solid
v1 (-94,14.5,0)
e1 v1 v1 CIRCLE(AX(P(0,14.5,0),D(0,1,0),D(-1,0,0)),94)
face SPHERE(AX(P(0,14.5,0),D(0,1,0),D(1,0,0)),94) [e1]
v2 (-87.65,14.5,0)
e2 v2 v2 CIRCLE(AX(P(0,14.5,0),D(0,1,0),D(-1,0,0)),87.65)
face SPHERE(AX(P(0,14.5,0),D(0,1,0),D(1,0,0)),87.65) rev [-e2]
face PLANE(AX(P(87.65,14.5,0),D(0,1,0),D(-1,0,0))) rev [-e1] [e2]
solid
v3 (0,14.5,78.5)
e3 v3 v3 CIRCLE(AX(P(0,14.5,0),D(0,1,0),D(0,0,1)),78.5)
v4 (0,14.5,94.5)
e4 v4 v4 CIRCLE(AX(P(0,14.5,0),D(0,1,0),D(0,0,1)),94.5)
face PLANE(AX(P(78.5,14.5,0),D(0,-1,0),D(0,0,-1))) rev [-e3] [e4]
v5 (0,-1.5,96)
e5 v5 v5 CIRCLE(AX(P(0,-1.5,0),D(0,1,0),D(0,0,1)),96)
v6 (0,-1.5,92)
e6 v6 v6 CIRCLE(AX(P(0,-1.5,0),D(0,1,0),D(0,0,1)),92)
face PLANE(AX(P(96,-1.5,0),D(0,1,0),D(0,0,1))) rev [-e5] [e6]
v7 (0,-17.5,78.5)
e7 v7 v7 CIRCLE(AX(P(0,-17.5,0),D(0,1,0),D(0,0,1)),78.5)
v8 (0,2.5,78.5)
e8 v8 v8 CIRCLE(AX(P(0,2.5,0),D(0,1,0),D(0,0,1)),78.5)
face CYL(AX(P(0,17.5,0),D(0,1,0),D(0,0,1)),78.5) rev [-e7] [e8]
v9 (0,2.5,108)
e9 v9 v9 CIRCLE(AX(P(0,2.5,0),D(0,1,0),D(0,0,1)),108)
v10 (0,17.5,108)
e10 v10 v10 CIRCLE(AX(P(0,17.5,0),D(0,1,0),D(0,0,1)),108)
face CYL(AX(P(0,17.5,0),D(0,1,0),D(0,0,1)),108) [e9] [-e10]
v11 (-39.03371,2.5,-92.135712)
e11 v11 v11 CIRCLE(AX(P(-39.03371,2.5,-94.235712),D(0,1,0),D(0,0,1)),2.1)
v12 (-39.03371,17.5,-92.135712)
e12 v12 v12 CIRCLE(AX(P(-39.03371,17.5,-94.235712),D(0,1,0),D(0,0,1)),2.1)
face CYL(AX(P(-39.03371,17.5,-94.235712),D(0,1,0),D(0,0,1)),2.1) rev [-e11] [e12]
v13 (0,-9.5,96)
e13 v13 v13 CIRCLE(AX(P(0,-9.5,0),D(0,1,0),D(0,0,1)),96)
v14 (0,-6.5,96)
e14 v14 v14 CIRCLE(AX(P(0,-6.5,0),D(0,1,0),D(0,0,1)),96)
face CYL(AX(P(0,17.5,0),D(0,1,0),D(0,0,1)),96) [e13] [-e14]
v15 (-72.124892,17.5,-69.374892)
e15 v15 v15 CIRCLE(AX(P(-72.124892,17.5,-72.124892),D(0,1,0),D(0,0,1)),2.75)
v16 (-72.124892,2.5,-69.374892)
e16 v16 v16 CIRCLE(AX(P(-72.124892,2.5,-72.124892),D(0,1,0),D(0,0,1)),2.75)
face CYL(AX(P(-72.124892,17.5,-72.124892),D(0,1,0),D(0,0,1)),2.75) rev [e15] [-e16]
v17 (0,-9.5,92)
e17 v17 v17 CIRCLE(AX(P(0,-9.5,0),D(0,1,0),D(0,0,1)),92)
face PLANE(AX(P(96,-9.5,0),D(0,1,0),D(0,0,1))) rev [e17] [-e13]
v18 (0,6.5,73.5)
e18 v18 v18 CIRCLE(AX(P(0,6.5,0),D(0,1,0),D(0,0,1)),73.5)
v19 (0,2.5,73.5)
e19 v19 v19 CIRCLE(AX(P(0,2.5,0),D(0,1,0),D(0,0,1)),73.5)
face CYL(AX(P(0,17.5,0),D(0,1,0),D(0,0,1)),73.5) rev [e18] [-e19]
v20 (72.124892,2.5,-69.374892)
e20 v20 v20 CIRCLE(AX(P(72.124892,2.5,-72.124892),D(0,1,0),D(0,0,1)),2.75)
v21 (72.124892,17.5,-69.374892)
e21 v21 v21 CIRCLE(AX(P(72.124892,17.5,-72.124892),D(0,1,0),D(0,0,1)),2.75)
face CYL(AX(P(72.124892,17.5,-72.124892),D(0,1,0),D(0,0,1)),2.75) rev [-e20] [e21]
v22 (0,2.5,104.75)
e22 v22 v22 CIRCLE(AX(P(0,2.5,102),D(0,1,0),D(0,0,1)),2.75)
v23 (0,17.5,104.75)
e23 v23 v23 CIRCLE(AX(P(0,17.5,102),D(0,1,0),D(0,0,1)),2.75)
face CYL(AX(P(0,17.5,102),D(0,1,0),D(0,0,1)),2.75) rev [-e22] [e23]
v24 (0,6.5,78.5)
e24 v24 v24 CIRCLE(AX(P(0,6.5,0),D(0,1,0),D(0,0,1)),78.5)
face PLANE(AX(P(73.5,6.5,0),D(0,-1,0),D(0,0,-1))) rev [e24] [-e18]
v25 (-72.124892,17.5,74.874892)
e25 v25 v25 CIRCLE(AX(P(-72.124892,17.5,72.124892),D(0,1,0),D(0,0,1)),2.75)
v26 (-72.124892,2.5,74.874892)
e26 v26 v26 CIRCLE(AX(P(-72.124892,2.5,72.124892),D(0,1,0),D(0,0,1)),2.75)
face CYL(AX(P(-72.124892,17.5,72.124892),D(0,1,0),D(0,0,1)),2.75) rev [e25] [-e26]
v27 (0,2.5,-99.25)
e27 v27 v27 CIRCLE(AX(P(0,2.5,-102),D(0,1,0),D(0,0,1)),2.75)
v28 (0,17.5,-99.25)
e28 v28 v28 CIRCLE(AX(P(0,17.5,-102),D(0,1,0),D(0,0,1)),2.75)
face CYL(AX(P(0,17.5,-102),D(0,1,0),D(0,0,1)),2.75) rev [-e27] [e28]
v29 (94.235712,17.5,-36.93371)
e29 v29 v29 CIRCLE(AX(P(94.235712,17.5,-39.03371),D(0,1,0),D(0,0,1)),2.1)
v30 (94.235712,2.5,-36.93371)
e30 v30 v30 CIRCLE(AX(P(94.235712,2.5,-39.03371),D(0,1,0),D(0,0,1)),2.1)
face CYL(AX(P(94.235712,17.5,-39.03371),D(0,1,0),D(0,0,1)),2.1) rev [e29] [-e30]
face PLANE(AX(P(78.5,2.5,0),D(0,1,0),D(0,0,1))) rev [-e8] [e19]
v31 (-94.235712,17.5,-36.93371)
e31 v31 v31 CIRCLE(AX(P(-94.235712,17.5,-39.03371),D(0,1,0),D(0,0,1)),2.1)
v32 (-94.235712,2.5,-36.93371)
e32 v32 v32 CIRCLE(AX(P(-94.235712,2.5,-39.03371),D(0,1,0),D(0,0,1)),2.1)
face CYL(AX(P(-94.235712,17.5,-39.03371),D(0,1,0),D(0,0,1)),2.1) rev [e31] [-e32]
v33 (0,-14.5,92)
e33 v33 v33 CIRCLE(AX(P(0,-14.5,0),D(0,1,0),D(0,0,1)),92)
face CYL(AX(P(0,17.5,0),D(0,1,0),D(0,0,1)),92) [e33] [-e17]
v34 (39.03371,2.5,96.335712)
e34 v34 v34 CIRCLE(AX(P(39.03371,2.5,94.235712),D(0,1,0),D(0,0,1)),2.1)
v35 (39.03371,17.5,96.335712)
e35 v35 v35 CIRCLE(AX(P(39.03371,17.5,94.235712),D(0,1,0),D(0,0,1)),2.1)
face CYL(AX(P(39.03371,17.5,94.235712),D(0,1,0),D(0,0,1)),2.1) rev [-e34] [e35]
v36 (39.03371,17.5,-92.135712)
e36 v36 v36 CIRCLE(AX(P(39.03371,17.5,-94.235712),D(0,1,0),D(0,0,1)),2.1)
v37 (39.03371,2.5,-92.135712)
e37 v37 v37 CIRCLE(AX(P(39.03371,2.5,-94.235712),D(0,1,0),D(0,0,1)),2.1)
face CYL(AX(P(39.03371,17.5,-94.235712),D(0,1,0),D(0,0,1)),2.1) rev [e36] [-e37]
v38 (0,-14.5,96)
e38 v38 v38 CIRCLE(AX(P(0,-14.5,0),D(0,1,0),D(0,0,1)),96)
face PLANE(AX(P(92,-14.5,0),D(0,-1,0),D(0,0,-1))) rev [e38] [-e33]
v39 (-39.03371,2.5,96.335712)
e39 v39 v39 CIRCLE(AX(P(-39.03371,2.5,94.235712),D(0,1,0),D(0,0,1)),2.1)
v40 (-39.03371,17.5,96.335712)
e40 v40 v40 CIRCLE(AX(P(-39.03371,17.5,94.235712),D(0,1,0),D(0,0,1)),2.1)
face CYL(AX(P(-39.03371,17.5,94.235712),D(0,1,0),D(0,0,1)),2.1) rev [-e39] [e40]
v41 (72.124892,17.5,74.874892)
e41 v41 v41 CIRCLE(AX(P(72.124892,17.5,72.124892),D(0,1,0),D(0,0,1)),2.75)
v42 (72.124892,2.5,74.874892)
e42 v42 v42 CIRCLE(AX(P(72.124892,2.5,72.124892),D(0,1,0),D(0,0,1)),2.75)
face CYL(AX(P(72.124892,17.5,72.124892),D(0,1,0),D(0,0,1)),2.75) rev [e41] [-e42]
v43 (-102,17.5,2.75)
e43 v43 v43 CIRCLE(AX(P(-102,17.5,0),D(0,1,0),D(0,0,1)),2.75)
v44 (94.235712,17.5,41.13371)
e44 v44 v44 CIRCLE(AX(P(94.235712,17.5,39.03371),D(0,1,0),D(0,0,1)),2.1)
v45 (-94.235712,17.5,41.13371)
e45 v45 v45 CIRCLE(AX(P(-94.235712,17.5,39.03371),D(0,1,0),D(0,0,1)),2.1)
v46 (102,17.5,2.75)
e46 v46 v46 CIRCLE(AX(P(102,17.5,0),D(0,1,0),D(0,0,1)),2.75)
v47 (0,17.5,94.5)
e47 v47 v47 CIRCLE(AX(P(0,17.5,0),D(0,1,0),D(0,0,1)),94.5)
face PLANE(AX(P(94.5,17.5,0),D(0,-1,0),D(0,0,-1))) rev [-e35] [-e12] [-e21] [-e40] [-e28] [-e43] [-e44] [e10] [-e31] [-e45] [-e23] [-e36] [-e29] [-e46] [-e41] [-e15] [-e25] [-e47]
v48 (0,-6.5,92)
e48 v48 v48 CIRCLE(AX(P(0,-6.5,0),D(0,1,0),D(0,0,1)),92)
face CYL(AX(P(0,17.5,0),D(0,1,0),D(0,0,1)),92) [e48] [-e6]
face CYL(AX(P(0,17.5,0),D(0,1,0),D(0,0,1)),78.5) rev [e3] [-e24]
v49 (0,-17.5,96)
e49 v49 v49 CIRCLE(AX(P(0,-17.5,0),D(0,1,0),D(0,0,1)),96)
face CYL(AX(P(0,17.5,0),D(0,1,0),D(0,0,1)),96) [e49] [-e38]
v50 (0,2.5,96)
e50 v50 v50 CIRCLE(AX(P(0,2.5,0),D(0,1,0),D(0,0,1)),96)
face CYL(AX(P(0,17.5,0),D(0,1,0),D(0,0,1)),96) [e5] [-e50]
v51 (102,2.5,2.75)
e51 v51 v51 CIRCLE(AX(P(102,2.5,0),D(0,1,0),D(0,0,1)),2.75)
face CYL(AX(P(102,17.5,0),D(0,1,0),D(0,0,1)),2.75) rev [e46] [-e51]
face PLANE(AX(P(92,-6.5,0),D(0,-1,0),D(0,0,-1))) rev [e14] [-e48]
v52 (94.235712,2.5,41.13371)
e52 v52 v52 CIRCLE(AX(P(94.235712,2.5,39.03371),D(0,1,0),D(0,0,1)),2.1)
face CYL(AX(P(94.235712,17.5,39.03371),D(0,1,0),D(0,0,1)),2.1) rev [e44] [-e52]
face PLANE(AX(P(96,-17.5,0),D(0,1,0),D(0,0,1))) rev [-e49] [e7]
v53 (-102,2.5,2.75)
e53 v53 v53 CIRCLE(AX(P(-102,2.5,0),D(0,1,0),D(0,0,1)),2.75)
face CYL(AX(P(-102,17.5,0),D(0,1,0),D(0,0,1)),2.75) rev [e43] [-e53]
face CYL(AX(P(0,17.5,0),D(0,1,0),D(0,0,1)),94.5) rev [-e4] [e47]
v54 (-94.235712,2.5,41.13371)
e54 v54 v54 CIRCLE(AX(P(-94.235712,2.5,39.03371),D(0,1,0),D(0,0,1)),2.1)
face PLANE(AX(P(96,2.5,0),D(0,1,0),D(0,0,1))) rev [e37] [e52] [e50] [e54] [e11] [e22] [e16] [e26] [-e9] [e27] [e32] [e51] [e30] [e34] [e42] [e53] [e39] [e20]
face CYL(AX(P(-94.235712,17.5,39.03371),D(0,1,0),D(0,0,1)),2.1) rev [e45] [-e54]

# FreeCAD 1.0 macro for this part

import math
import FreeCAD as App
import Part
import Sketcher
from FreeCAD import Vector


def add_polygon(sketch, points):
    """Adds a closed chain of lines whose ends are joined by coincident constraints."""
    first, n = sketch.GeometryCount, len(points)
    for a, b in zip(points, points[1:] + points[:1]):
        sketch.addGeometry(Part.LineSegment(App.Vector(*a, 0), App.Vector(*b, 0)), False)
    for i in range(n):
        sketch.addConstraint(Sketcher.Constraint("Coincident", first + i, 2, first + (i + 1) % n, 1))

doc = App.newDocument("Part")
body = doc.addObject("PartDesign::Body", "Body")

# Sketch on XY plane
sketch1 = body.newObject("Sketcher::SketchObject", "Sketch")
sketch1.AttachmentSupport = (doc.getObject("XY_Plane"), [""])
sketch1.MapMode = "FlatFace"
add_polygon(sketch1, [(78.5, 2.5), (78.5, -17.5), (96, -17.5), (96, -14.5), (92, -14.5), (92, -9.5), (96, -9.5), (96, -6.5), (92, -6.5), (92, -1.5), (96, -1.5), (96, 2.5), (108, 2.5), (108, 17.5), (94.5, 17.5), (94.5, 14.5), (78.5, 14.5), (78.5, 6.5), (73.5, 6.5), (73.5, 2.5)])  # lines 0-19
sketch1.addConstraint(Sketcher.Constraint("Vertical", 0))
sketch1.addConstraint(Sketcher.Constraint("Horizontal", 1))
sketch1.addConstraint(Sketcher.Constraint("Vertical", 2))
sketch1.addConstraint(Sketcher.Constraint("Horizontal", 3))
sketch1.addConstraint(Sketcher.Constraint("Vertical", 4))
sketch1.addConstraint(Sketcher.Constraint("Horizontal", 5))
sketch1.addConstraint(Sketcher.Constraint("Vertical", 6))
sketch1.addConstraint(Sketcher.Constraint("Horizontal", 7))
sketch1.addConstraint(Sketcher.Constraint("Vertical", 8))
sketch1.addConstraint(Sketcher.Constraint("Horizontal", 9))
sketch1.addConstraint(Sketcher.Constraint("Vertical", 10))
sketch1.addConstraint(Sketcher.Constraint("Horizontal", 11))
sketch1.addConstraint(Sketcher.Constraint("Vertical", 12))
sketch1.addConstraint(Sketcher.Constraint("Horizontal", 13))
sketch1.addConstraint(Sketcher.Constraint("Vertical", 14))
sketch1.addConstraint(Sketcher.Constraint("Horizontal", 15))
sketch1.addConstraint(Sketcher.Constraint("Vertical", 16))
sketch1.addConstraint(Sketcher.Constraint("Horizontal", 17))
sketch1.addConstraint(Sketcher.Constraint("Vertical", 18))
sketch1.addConstraint(Sketcher.Constraint("Horizontal", 19))
sketch1.addConstraint(Sketcher.Constraint("Horizontal", 11, 2, 18, 2))
sketch1.addConstraint(Sketcher.Constraint("Vertical", 2, 2, 5, 2))
sketch1.addConstraint(Sketcher.Constraint("Vertical", 4, 2, 7, 2))
sketch1.addConstraint(Sketcher.Constraint("Vertical", 6, 2, 9, 2))
sketch1.addConstraint(Sketcher.Constraint("Vertical", 0, 2, 15, 2))
sketch1.addConstraint(Sketcher.Constraint("Equal", 19, 4))
sketch1.addConstraint(Sketcher.Constraint("Equal", 2, 6))
sketch1.addConstraint(Sketcher.Constraint("Equal", 4, 8))
sketch1.addConstraint(Sketcher.Constraint("Equal", 9, 10))
sketch1.addConstraint(Sketcher.Constraint("Equal", 6, 14))
sketch1.addConstraint(Sketcher.Constraint("Equal", 10, 18))
sketch1.addConstraint(Sketcher.Constraint("DistanceX", 3, 2, 3, 1, 4.0))
sketch1.addConstraint(Sketcher.Constraint("DistanceX", 11, 1, 11, 2, 12.0))
sketch1.addConstraint(Sketcher.Constraint("DistanceX", 15, 2, 15, 1, 16.0))
sketch1.addConstraint(Sketcher.Constraint("DistanceX", 17, 2, 17, 1, 5.0))
sketch1.addConstraint(Sketcher.Constraint("DistanceY", 0, 2, 0, 1, 20.0))
sketch1.addConstraint(Sketcher.Constraint("DistanceY", 12, 1, 12, 2, 15.0))
sketch1.addConstraint(Sketcher.Constraint("DistanceX", 1, 1, 1, 2, 17.5))
sketch1.addConstraint(Sketcher.Constraint("DistanceX", -1, 1, 1, 2, 96.0))
sketch1.addConstraint(Sketcher.Constraint("DistanceY", 0, 2, -1, 1, 17.5))
revolution = body.newObject("PartDesign::Revolution", "Revolution")
revolution.Profile = sketch1
revolution.ReferenceAxis = (sketch1, ["V_Axis"])
revolution.Angle = 360

# Sketch on XZ plane
sketch2 = body.newObject("Sketcher::SketchObject", "Sketch001")
sketch2.AttachmentSupport = (doc.getObject("XZ_Plane"), [""])
sketch2.MapMode = "FlatFace"
sketch2.AttachmentOffset = App.Placement(Vector(0, 0, -17.5), App.Rotation())
sketch2.addGeometry(Part.Circle(Vector(102, 0, 0), Vector(0, 0, 1), 2.75), False)
sketch2.addGeometry(Part.Circle(Vector(72.124892, 72.124892, 0), Vector(0, 0, 1), 2.75), False)
sketch2.addGeometry(Part.Circle(Vector(0, 102, 0), Vector(0, 0, 1), 2.75), False)
sketch2.addGeometry(Part.Circle(Vector(-72.124892, 72.124892, 0), Vector(0, 0, 1), 2.75), False)
sketch2.addGeometry(Part.Circle(Vector(-102, 0, 0), Vector(0, 0, 1), 2.75), False)
sketch2.addGeometry(Part.Circle(Vector(-72.124892, -72.124892, 0), Vector(0, 0, 1), 2.75), False)
sketch2.addGeometry(Part.Circle(Vector(0, -102, 0), Vector(0, 0, 1), 2.75), False)
sketch2.addGeometry(Part.Circle(Vector(72.124892, -72.124892, 0), Vector(0, 0, 1), 2.75), False)
sketch2.addConstraint(Sketcher.Constraint("Equal", 0, 1))
sketch2.addConstraint(Sketcher.Constraint("Equal", 1, 2))
sketch2.addConstraint(Sketcher.Constraint("Equal", 2, 3))
sketch2.addConstraint(Sketcher.Constraint("Equal", 3, 4))
sketch2.addConstraint(Sketcher.Constraint("Equal", 4, 5))
sketch2.addConstraint(Sketcher.Constraint("Equal", 5, 6))
sketch2.addConstraint(Sketcher.Constraint("Equal", 6, 7))
sketch2.addConstraint(Sketcher.Constraint("Symmetric", 0, 3, 4, 3, -1, 1))
sketch2.addConstraint(Sketcher.Constraint("Symmetric", 1, 3, 5, 3, -1, 1))
sketch2.addConstraint(Sketcher.Constraint("Symmetric", 2, 3, 6, 3, -1, 1))
sketch2.addConstraint(Sketcher.Constraint("Symmetric", 3, 3, 7, 3, -1, 1))
sketch2.addConstraint(Sketcher.Constraint("Symmetric", 1, 3, 3, 3, -2))
sketch2.addConstraint(Sketcher.Constraint("PointOnObject", 0, 3, -1))
sketch2.addConstraint(Sketcher.Constraint("PointOnObject", 2, 3, -2))
sketch2.addConstraint(Sketcher.Constraint("Diameter", 0, 5.5))
sketch2.addConstraint(Sketcher.Constraint("DistanceX", -1, 1, 0, 3, 102.0))
sketch2.addConstraint(Sketcher.Constraint("DistanceY", -1, 1, 2, 3, 102.0))
sketch2.addConstraint(Sketcher.Constraint("DistanceX", -1, 1, 1, 3, 72.124892))
sketch2.addConstraint(Sketcher.Constraint("DistanceY", -1, 1, 1, 3, 72.124892))
doc.recompute()
hole = body.newObject("PartDesign::Hole", "Hole")
hole.Profile = sketch2
hole.ThreadType = "None"
hole.Diameter = 5.5
hole.DepthType = "ThroughAll"
hole.Reversed = True

# Sketch on XZ plane
sketch3 = body.newObject("Sketcher::SketchObject", "Sketch002")
sketch3.AttachmentSupport = (doc.getObject("XZ_Plane"), [""])
sketch3.MapMode = "FlatFace"
sketch3.AttachmentOffset = App.Placement(Vector(0, 0, -17.5), App.Rotation())
sketch3.addGeometry(Part.Circle(Vector(94.235712, -39.03371, 0), Vector(0, 0, 1), 2.1), False)
sketch3.addGeometry(Part.Circle(Vector(94.235712, 39.03371, 0), Vector(0, 0, 1), 2.1), False)
sketch3.addGeometry(Part.Circle(Vector(39.03371, 94.235712, 0), Vector(0, 0, 1), 2.1), False)
sketch3.addGeometry(Part.Circle(Vector(-39.03371, 94.235712, 0), Vector(0, 0, 1), 2.1), False)
sketch3.addGeometry(Part.Circle(Vector(-94.235712, 39.03371, 0), Vector(0, 0, 1), 2.1), False)
sketch3.addGeometry(Part.Circle(Vector(-94.235712, -39.03371, 0), Vector(0, 0, 1), 2.1), False)
sketch3.addGeometry(Part.Circle(Vector(-39.03371, -94.235712, 0), Vector(0, 0, 1), 2.1), False)
sketch3.addGeometry(Part.Circle(Vector(39.03371, -94.235712, 0), Vector(0, 0, 1), 2.1), False)
sketch3.addConstraint(Sketcher.Constraint("Equal", 0, 1))
sketch3.addConstraint(Sketcher.Constraint("Equal", 1, 2))
sketch3.addConstraint(Sketcher.Constraint("Equal", 2, 3))
sketch3.addConstraint(Sketcher.Constraint("Equal", 3, 4))
sketch3.addConstraint(Sketcher.Constraint("Equal", 4, 5))
sketch3.addConstraint(Sketcher.Constraint("Equal", 5, 6))
sketch3.addConstraint(Sketcher.Constraint("Equal", 6, 7))
sketch3.addConstraint(Sketcher.Constraint("Symmetric", 0, 3, 4, 3, -1, 1))
sketch3.addConstraint(Sketcher.Constraint("Symmetric", 1, 3, 5, 3, -1, 1))
sketch3.addConstraint(Sketcher.Constraint("Symmetric", 2, 3, 6, 3, -1, 1))
sketch3.addConstraint(Sketcher.Constraint("Symmetric", 3, 3, 7, 3, -1, 1))
sketch3.addConstraint(Sketcher.Constraint("Symmetric", 2, 3, 3, 3, -2))
sketch3.addConstraint(Sketcher.Constraint("Symmetric", 1, 3, 4, 3, -2))
sketch3.addConstraint(Sketcher.Constraint("Diameter", 0, 4.2))
sketch3.addConstraint(Sketcher.Constraint("DistanceY", 0, 3, -1, 1, 39.03371))
sketch3.addConstraint(Sketcher.Constraint("DistanceX", -1, 1, 2, 3, 39.03371))
sketch3.addConstraint(Sketcher.Constraint("DistanceX", -1, 1, 0, 3, 94.235712))
sketch3.addConstraint(Sketcher.Constraint("DistanceY", -1, 1, 2, 3, 94.235712))
doc.recompute()
hole2 = body.newObject("PartDesign::Hole", "Hole001")
hole2.Profile = sketch3
hole2.ThreadType = "None"
hole2.Diameter = 4.2
hole2.DepthType = "ThroughAll"
hole2.Reversed = True
body2 = doc.addObject("PartDesign::Body", "Body001")

# Sketch on XY plane
sketch4 = body2.newObject("Sketcher::SketchObject", "Sketch003")
sketch4.AttachmentSupport = (doc.getObject("XY_Plane001"), [""])
sketch4.MapMode = "FlatFace"
sketch4.addGeometry(Part.LineSegment(Vector(87.65, 14.5, 0), Vector(94, 14.5, 0)), False)
sketch4.addGeometry(Part.ArcOfCircle(Part.Circle(Vector(0, 14.5, 0), Vector(0, 0, 1), 94), math.radians(0), math.radians(90)), False)
sketch4.addGeometry(Part.LineSegment(Vector(0, 108.5, 0), Vector(0, 102.15, 0)), False)
sketch4.addGeometry(Part.ArcOfCircle(Part.Circle(Vector(0, 14.5, 0), Vector(0, 0, 1), 87.65), math.radians(0), math.radians(90)), False)
sketch4.addConstraint(Sketcher.Constraint("Coincident", 0, 2, 1, 1))
sketch4.addConstraint(Sketcher.Constraint("Coincident", 1, 2, 2, 1))
sketch4.addConstraint(Sketcher.Constraint("Coincident", 2, 2, 3, 2))
sketch4.addConstraint(Sketcher.Constraint("Coincident", 3, 1, 0, 1))
sketch4.addConstraint(Sketcher.Constraint("Horizontal", 0))
sketch4.addConstraint(Sketcher.Constraint("Vertical", 2))
sketch4.addConstraint(Sketcher.Constraint("Coincident", 3, 3, 1, 3))
sketch4.addConstraint(Sketcher.Constraint("PointOnObject", 1, 3, -2))
sketch4.addConstraint(Sketcher.Constraint("PointOnObject", 1, 2, -2))
sketch4.addConstraint(Sketcher.Constraint("Horizontal", 3, 3, 0, 2))
sketch4.addConstraint(Sketcher.Constraint("Radius", 1, 94.0))
sketch4.addConstraint(Sketcher.Constraint("Radius", 3, 87.65))
sketch4.addConstraint(Sketcher.Constraint("DistanceY", -1, 1, 1, 3, 14.5))
revolution2 = body2.newObject("PartDesign::Revolution", "Revolution001")
revolution2.Profile = sketch4
revolution2.ReferenceAxis = (sketch4, ["V_Axis"])
revolution2.Angle = 360

doc.recompute()
